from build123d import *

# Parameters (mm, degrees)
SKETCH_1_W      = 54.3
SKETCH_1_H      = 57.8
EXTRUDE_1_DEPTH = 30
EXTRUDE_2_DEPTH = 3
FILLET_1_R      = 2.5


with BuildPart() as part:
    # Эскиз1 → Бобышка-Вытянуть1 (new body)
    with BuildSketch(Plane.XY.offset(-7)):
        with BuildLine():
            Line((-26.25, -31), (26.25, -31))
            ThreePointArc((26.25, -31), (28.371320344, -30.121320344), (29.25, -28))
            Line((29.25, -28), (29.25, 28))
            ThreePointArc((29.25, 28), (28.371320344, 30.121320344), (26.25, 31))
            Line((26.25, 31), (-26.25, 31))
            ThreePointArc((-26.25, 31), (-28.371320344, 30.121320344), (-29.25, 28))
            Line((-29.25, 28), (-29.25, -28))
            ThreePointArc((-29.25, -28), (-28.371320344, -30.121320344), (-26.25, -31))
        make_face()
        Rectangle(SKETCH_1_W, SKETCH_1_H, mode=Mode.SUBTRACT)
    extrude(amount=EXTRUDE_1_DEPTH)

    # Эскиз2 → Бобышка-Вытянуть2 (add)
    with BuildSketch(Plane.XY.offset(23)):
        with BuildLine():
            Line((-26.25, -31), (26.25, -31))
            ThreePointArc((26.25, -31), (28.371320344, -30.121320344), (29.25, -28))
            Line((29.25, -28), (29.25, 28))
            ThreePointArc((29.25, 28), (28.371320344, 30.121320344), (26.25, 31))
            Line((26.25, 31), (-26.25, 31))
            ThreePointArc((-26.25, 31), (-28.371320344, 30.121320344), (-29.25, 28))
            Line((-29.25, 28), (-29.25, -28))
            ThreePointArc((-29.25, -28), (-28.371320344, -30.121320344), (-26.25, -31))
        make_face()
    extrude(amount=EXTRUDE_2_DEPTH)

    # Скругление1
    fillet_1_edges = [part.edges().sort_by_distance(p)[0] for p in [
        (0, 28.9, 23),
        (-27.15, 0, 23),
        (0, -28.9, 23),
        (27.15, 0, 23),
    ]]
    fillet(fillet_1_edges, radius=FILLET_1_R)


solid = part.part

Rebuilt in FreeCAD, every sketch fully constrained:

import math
import FreeCAD as App
import Part
import Sketcher
from FreeCAD import Vector
Q = App.Units.Quantity


def edges_at(feature, points):
    """Names of the edges that pass closest to the given points."""
    edges = feature.Shape.Edges
    near = lambda p: min(range(len(edges)), key=lambda i: edges[i].distToShape(Part.Vertex(*p))[0])
    return sorted({f"Edge{near(p) + 1}" for p in points})

doc = App.newDocument("Part")
params = doc.addObject("Spreadsheet::Sheet", "Params")
for row, (alias, value) in enumerate([
    ("sketch1_radius", "3 mm"),
    ("sketch1_height", "56 mm"),
    ("sketch1_width", "52.5 mm"),
    ("sketch1_width2", "54.3 mm"),
    ("sketch1_height2", "57.8 mm"),
    ("pad1_length", "30 mm"),
    ("sketch2_radius", "3 mm"),
    ("sketch2_height", "56 mm"),
    ("sketch2_width", "52.5 mm"),
    ("pad2_length", "3 mm"),
    ("fillet_radius", "2.5 mm"),
], start=1):
    params.set(f"A{row}", alias)
    params.set(f"B{row}", "=" + value)
    params.setAlias(f"B{row}", alias)

body = doc.addObject("PartDesign::Body", "Body")

# Sketch on XY plane
sketch1 = body.newObject("Sketcher::SketchObject", "Sketch")
sketch1.AttachmentSupport = (doc.getObject("XY_Plane"), [""])
sketch1.MapMode = "FlatFace"
sketch1.AttachmentOffset = App.Placement(Vector(0, 0, -7), App.Rotation())
sketch1.addGeometry([
    Part.LineSegment(Vector(-26.25, -31, 0), Vector(26.25, -31, 0)),  # 0
    Part.ArcOfCircle(Part.Circle(Vector(26.25, -28, 0), Vector(0, 0, 1), 3), math.radians(-90), math.radians(0)),  # 1
    Part.LineSegment(Vector(29.25, -28, 0), Vector(29.25, 28, 0)),  # 2
    Part.ArcOfCircle(Part.Circle(Vector(26.25, 28, 0), Vector(0, 0, 1), 3), math.radians(0), math.radians(90)),  # 3
    Part.LineSegment(Vector(26.25, 31, 0), Vector(-26.25, 31, 0)),  # 4
    Part.ArcOfCircle(Part.Circle(Vector(-26.25, 28, 0), Vector(0, 0, 1), 3), math.radians(90), math.radians(180)),  # 5
    Part.LineSegment(Vector(-29.25, 28, 0), Vector(-29.25, -28, 0)),  # 6
    Part.ArcOfCircle(Part.Circle(Vector(-26.25, -28, 0), Vector(0, 0, 1), 3), math.radians(180), math.radians(270)),  # 7
    Part.LineSegment(Vector(27.15, -28.9, 0), Vector(-27.15, -28.9, 0)),  # 8
    Part.LineSegment(Vector(-27.15, -28.9, 0), Vector(-27.15, 28.9, 0)),  # 9
    Part.LineSegment(Vector(-27.15, 28.9, 0), Vector(27.15, 28.9, 0)),  # 10
    Part.LineSegment(Vector(27.15, 28.9, 0), Vector(27.15, -28.9, 0)),  # 11
], False)
sketch1.addConstraint([
    Sketcher.Constraint("Tangent", 0, 2, 1, 1),
    Sketcher.Constraint("Tangent", 1, 2, 2, 1),
    Sketcher.Constraint("Tangent", 2, 2, 3, 1),
    Sketcher.Constraint("Tangent", 3, 2, 4, 1),
    Sketcher.Constraint("Tangent", 4, 2, 5, 1),
    Sketcher.Constraint("Tangent", 5, 2, 6, 1),
    Sketcher.Constraint("Tangent", 6, 2, 7, 1),
    Sketcher.Constraint("Tangent", 7, 2, 0, 1),
    Sketcher.Constraint("Coincident", 8, 2, 9, 1),
    Sketcher.Constraint("Coincident", 9, 2, 10, 1),
    Sketcher.Constraint("Coincident", 10, 2, 11, 1),
    Sketcher.Constraint("Coincident", 11, 2, 8, 1),
    Sketcher.Constraint("Horizontal", 0),
    Sketcher.Constraint("Vertical", 2),
    Sketcher.Constraint("Horizontal", 4),
    Sketcher.Constraint("Vertical", 6),
    Sketcher.Constraint("Horizontal", 8),
    Sketcher.Constraint("Vertical", 9),
    Sketcher.Constraint("Horizontal", 10),
    Sketcher.Constraint("Vertical", 11),
    Sketcher.Constraint("Equal", 1, 3),
    Sketcher.Constraint("Equal", 3, 5),
    Sketcher.Constraint("Equal", 5, 7),
    Sketcher.Constraint("Symmetric", 1, 3, 5, 3, -1, 1),
    Sketcher.Constraint("Symmetric", 8, 2, 10, 2, -1, 1),
    Sketcher.Constraint("Radius", 1, Q("3 mm")),
    Sketcher.Constraint("DistanceY", 2, 1, 2, 2, Q("56 mm")),
    Sketcher.Constraint("DistanceX", 0, 1, 0, 2, Q("52.5 mm")),
    Sketcher.Constraint("DistanceX", 8, 2, 8, 1, Q("54.3 mm")),
    Sketcher.Constraint("DistanceY", 9, 1, 9, 2, Q("57.8 mm")),
])
sketch1.setExpression("Constraints[25]", "Params.sketch1_radius")
sketch1.setExpression("Constraints[26]", "Params.sketch1_height")
sketch1.setExpression("Constraints[27]", "Params.sketch1_width")
sketch1.setExpression("Constraints[28]", "Params.sketch1_width2")
sketch1.setExpression("Constraints[29]", "Params.sketch1_height2")
pad1 = body.newObject("PartDesign::Pad", "Pad")
pad1.Profile = sketch1
pad1.setExpression("Length", "Params.pad1_length")

# Sketch on XY plane
sketch2 = body.newObject("Sketcher::SketchObject", "Sketch001")
sketch2.AttachmentSupport = (doc.getObject("XY_Plane"), [""])
sketch2.MapMode = "FlatFace"
sketch2.AttachmentOffset = App.Placement(Vector(0, 0, 23), App.Rotation())
sketch2.addGeometry([
    Part.LineSegment(Vector(-26.25, -31, 0), Vector(26.25, -31, 0)),  # 0
    Part.ArcOfCircle(Part.Circle(Vector(26.25, -28, 0), Vector(0, 0, 1), 3), math.radians(-90), math.radians(0)),  # 1
    Part.LineSegment(Vector(29.25, -28, 0), Vector(29.25, 28, 0)),  # 2
    Part.ArcOfCircle(Part.Circle(Vector(26.25, 28, 0), Vector(0, 0, 1), 3), math.radians(0), math.radians(90)),  # 3
    Part.LineSegment(Vector(26.25, 31, 0), Vector(-26.25, 31, 0)),  # 4
    Part.ArcOfCircle(Part.Circle(Vector(-26.25, 28, 0), Vector(0, 0, 1), 3), math.radians(90), math.radians(180)),  # 5
    Part.LineSegment(Vector(-29.25, 28, 0), Vector(-29.25, -28, 0)),  # 6
    Part.ArcOfCircle(Part.Circle(Vector(-26.25, -28, 0), Vector(0, 0, 1), 3), math.radians(180), math.radians(270)),  # 7
], False)
sketch2.addConstraint([
    Sketcher.Constraint("Tangent", 0, 2, 1, 1),
    Sketcher.Constraint("Tangent", 1, 2, 2, 1),
    Sketcher.Constraint("Tangent", 2, 2, 3, 1),
    Sketcher.Constraint("Tangent", 3, 2, 4, 1),
    Sketcher.Constraint("Tangent", 4, 2, 5, 1),
    Sketcher.Constraint("Tangent", 5, 2, 6, 1),
    Sketcher.Constraint("Tangent", 6, 2, 7, 1),
    Sketcher.Constraint("Tangent", 7, 2, 0, 1),
    Sketcher.Constraint("Horizontal", 0),
    Sketcher.Constraint("Vertical", 2),
    Sketcher.Constraint("Horizontal", 4),
    Sketcher.Constraint("Vertical", 6),
    Sketcher.Constraint("Equal", 1, 3),
    Sketcher.Constraint("Equal", 3, 5),
    Sketcher.Constraint("Equal", 5, 7),
    Sketcher.Constraint("Symmetric", 1, 3, 5, 3, -1, 1),
    Sketcher.Constraint("Radius", 1, Q("3 mm")),
    Sketcher.Constraint("DistanceY", 2, 1, 2, 2, Q("56 mm")),
    Sketcher.Constraint("DistanceX", 0, 1, 0, 2, Q("52.5 mm")),
])
sketch2.setExpression("Constraints[16]", "Params.sketch2_radius")
sketch2.setExpression("Constraints[17]", "Params.sketch2_height")
sketch2.setExpression("Constraints[18]", "Params.sketch2_width")
pad2 = body.newObject("PartDesign::Pad", "Pad001")
pad2.Profile = sketch2
pad2.setExpression("Length", "Params.pad2_length")
doc.recompute()

fillet = body.newObject("PartDesign::Fillet", "Fillet")
fillet.Base = (pad2, edges_at(pad2, [
    (0, 28.9, 23),
    (-27.15, 0, 23),
    (0, -28.9, 23),
    (27.15, 0, 23),
]))
fillet.setExpression("Radius", "Params.fillet_radius")

doc.recompute()
